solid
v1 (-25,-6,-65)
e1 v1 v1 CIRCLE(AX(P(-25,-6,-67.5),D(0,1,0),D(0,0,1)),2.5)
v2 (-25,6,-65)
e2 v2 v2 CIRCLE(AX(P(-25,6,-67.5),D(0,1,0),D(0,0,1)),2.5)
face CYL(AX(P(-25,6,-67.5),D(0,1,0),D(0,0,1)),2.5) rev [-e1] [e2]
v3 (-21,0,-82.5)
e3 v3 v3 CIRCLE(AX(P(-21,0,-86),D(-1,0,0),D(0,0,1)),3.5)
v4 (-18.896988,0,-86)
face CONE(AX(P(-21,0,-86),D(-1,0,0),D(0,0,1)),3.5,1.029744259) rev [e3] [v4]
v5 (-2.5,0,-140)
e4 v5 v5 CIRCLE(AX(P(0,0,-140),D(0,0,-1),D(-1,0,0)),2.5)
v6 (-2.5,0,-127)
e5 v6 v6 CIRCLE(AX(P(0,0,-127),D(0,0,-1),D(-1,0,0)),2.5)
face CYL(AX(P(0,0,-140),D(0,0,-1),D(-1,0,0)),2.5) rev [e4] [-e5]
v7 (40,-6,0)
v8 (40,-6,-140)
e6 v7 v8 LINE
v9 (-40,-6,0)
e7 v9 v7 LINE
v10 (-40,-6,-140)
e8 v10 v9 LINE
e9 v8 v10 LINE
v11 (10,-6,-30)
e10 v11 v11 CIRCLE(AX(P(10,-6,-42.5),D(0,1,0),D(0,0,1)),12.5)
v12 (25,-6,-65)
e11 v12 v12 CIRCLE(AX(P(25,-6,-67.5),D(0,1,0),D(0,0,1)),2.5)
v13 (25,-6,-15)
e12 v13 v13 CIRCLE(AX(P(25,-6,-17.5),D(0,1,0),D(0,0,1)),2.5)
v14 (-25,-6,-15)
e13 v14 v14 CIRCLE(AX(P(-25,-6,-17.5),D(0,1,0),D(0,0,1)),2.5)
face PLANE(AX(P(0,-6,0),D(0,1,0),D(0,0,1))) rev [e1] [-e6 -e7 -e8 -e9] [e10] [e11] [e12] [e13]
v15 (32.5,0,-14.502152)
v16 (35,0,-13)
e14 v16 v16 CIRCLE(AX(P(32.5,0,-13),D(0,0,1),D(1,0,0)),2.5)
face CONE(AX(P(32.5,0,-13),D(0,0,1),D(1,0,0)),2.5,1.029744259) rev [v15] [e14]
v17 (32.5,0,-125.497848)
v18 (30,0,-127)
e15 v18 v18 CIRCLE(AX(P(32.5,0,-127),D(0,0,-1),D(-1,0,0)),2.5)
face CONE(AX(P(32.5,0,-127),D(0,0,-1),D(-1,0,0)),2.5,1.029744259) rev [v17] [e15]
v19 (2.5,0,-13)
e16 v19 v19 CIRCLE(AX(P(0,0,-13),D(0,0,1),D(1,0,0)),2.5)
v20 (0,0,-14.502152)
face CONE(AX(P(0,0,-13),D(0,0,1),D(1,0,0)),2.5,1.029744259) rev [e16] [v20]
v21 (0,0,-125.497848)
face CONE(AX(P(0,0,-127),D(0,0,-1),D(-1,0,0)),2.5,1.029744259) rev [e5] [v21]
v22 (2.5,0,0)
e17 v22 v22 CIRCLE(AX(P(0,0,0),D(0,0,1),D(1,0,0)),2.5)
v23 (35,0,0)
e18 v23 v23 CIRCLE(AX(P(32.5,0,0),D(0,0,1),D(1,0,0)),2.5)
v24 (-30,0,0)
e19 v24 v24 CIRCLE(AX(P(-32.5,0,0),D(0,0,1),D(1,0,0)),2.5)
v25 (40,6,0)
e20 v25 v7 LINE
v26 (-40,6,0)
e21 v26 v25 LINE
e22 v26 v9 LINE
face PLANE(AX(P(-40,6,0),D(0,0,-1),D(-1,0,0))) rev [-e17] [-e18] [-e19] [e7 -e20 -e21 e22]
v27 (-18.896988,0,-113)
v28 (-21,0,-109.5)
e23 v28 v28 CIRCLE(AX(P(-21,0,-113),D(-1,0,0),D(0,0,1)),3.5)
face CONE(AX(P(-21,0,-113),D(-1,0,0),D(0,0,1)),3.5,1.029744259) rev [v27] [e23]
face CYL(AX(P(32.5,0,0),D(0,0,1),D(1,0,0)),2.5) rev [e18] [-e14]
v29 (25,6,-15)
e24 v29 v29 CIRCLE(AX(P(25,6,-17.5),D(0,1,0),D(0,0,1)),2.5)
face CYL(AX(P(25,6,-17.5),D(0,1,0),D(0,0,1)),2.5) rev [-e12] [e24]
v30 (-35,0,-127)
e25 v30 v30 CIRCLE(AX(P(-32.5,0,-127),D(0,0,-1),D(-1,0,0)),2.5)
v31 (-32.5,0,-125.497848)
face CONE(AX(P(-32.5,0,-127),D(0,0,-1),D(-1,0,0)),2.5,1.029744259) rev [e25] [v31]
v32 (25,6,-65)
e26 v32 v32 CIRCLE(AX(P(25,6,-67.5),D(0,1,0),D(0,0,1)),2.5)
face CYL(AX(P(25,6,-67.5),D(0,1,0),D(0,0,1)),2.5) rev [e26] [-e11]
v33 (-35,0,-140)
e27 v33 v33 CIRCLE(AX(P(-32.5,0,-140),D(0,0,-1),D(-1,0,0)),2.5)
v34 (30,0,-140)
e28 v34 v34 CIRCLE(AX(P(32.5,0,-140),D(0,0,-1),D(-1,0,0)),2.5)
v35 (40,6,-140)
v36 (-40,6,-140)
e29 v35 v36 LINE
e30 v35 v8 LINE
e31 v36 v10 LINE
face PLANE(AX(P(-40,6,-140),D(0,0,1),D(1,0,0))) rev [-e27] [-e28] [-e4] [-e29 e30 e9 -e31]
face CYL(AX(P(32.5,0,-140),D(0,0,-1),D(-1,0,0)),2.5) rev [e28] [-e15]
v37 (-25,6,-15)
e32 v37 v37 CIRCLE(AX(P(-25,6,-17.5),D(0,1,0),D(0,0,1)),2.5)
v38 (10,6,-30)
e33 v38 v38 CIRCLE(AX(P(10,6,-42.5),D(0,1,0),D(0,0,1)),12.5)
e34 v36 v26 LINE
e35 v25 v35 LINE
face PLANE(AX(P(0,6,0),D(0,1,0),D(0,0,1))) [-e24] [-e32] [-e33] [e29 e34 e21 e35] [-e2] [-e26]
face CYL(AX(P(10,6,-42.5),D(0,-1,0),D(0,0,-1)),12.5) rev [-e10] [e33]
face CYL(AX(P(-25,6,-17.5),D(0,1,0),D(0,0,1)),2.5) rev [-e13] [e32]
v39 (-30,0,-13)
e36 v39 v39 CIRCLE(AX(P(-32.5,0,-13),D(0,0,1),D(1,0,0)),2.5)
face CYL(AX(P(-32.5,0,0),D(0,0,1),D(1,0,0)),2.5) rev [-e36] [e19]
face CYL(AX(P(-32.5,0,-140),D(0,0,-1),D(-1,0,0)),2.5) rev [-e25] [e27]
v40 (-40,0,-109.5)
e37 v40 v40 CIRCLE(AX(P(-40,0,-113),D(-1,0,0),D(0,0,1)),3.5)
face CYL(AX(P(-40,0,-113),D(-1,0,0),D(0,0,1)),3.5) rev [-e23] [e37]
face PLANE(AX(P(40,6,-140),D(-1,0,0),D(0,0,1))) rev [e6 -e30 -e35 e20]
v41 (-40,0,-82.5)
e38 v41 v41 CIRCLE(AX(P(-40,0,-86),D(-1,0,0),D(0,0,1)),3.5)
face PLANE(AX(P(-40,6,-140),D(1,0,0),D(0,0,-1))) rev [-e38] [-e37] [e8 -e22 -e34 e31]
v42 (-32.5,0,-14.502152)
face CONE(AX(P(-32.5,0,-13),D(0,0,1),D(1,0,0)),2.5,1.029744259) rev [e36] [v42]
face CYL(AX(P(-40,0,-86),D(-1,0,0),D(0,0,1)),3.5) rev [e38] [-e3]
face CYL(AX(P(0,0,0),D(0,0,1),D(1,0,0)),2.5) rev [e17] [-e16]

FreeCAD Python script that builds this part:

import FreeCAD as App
import Part
import Sketcher

V = App.Vector
Q = App.Units.Quantity

doc = App.newDocument("Part")
params = doc.addObject("Spreadsheet::Sheet", "Params")
for row, (alias, value) in enumerate([
    ("sketch1_diameter", "25 mm"),
    ("sketch1_width", "80 mm"),
    ("sketch1_height", "140 mm"),
    ("pad1_length", "12 mm"),
    ("sketch2_diameter", "5 mm"),
    ("hole_diameter", "5 mm"),
    ("sketch3_height", "13 mm"),
    ("sketch3_width", "2.5 mm"),
    ("groove_angle", "360 deg"),
    ("linearpattern_pitch", "32.5 mm"),
    ("linearpattern2_pitch", "65 mm"),
    ("sketch4_height", "13 mm"),
    ("sketch4_width", "2.5 mm"),
    ("groove2_angle", "360 deg"),
    ("sketch5_height", "13 mm"),
    ("sketch5_width", "2.5 mm"),
    ("groove3_angle", "360 deg"),
    ("sketch6_diameter", "7 mm"),
    ("hole2_diameter", "7 mm"),
    ("hole2_depth", "19 mm"),
], start=1):
    params.set(f"A{row}", alias)
    params.set(f"B{row}", "=" + value)
    params.setAlias(f"B{row}", alias)

body = doc.addObject("PartDesign::Body", "Body")

# Sketch on XZ plane
sketch1 = doc.addObject("Sketcher::SketchObject", "Sketch")
body.addObject(sketch1)
sketch1.AttachmentSupport = (doc.XZ_Plane, [""])
sketch1.MapMode = "FlatFace"
sketch1.addGeometry([
    Part.LineSegment(V(-40, -140, 0), V(-40, 0, 0)),  # 0
    Part.LineSegment(V(-40, 0, 0), V(40, 0, 0)),  # 1
    Part.LineSegment(V(40, 0, 0), V(40, -140, 0)),  # 2
    Part.LineSegment(V(40, -140, 0), V(-40, -140, 0)),  # 3
    Part.Circle(V(10, -42, 0), V(0, 0, 1), 12),  # 4
], False)
sketch1.addConstraint([
    Sketcher.Constraint("Coincident", 0, 2, 1, 1),
    Sketcher.Constraint("Coincident", 1, 2, 2, 1),
    Sketcher.Constraint("Coincident", 2, 2, 3, 1),
    Sketcher.Constraint("Coincident", 3, 2, 0, 1),
    Sketcher.Constraint("Vertical", 0),
    Sketcher.Constraint("Horizontal", 1),
    Sketcher.Constraint("Vertical", 2),
    Sketcher.Constraint("Horizontal", 3),
    Sketcher.Constraint("Symmetric", 0, 2, 1, 2, -1, 1),
    Sketcher.Constraint("Diameter", 4, 25.0),
    Sketcher.Constraint("DistanceX", 1, 1, 1, 2, 80.0),
    Sketcher.Constraint("DistanceY", 0, 1, 0, 2, 140.0),
    Sketcher.Constraint("DistanceX", -1, 1, 4, 3, 10.0),
    Sketcher.Constraint("DistanceY", 4, 3, -1, 1, 42.5),
])
sketch1.setExpression("Constraints[9]", "Params.sketch1_diameter")
sketch1.setExpression("Constraints[10]", "Params.sketch1_width")
sketch1.setExpression("Constraints[11]", "Params.sketch1_height")
pad1 = doc.addObject("PartDesign::Pad", "Pad")
body.addObject(pad1)
pad1.Profile = sketch1
pad1.setExpression("Length", "Params.pad1_length")
pad1.Midplane = True

# Sketch on XZ plane
sketch2 = doc.addObject("Sketcher::SketchObject", "Sketch001")
body.addObject(sketch2)
sketch2.AttachmentSupport = (doc.XZ_Plane, [""])
sketch2.MapMode = "FlatFace"
sketch2.AttachmentOffset = App.Placement(V(0, 0, -6), App.Rotation())
sketch2.addGeometry([
    Part.Circle(V(-25, -67.5, 0), V(0, 0, 1), 2.5),
    Part.Circle(V(25, -67.5, 0), V(0, 0, 1), 2.5),
    Part.Circle(V(25, -17.5, 0), V(0, 0, 1), 2.5),
    Part.Circle(V(-25, -17.5, 0), V(0, 0, 1), 2.5),
], False)
sketch2.addConstraint([
    Sketcher.Constraint("Equal", 0, 1),
    Sketcher.Constraint("Equal", 1, 2),
    Sketcher.Constraint("Equal", 2, 3),
    Sketcher.Constraint("Symmetric", 0, 3, 1, 3, -2),
    Sketcher.Constraint("Symmetric", 2, 3, 3, 3, -2),
    Sketcher.Constraint("Vertical", 1, 3, 2, 3),
    Sketcher.Constraint("Diameter", 0, 5.0),
    Sketcher.Constraint("DistanceX", 0, 3, -1, 1, 25.0),
    Sketcher.Constraint("DistanceY", 1, 3, 2, 3, 50.0),
    Sketcher.Constraint("DistanceY", 0, 3, -1, 1, 67.5),
])
sketch2.setExpression("Constraints[6]", "Params.sketch2_diameter")
doc.recompute()
hole = doc.addObject("PartDesign::Hole", "Hole")
body.addObject(hole)
hole.Profile = sketch2
hole.ThreadType = "None"
hole.setExpression("Diameter", "Params.hole_diameter")
hole.DepthType = "ThroughAll"
hole.Reversed = True

# Sketch on YZ plane
sketch3 = doc.addObject("Sketcher::SketchObject", "Sketch002")
body.addObject(sketch3)
sketch3.AttachmentSupport = (doc.YZ_Plane, [""])
sketch3.MapMode = "FlatFace"
sketch3.AttachmentOffset = App.Placement(V(0, 0, 32.5), App.Rotation())
sketch3.addGeometry([
    Part.LineSegment(V(0, -14.5, 0), V(0, 0, 0)),
    Part.LineSegment(V(0, 0, 0), V(-2.5, 0, 0)),
    Part.LineSegment(V(-2.5, 0, 0), V(-2.5, -13, 0)),
    Part.LineSegment(V(-2.5, -13, 0), V(0, -14.5, 0)),
], False)
sketch3.addConstraint([
    Sketcher.Constraint("Coincident", 0, 2, 1, 1),
    Sketcher.Constraint("Coincident", 1, 2, 2, 1),
    Sketcher.Constraint("Coincident", 2, 2, 3, 1),
    Sketcher.Constraint("Coincident", 3, 2, 0, 1),
    Sketcher.Constraint("Vertical", 0),
    Sketcher.Constraint("Horizontal", 1),
    Sketcher.Constraint("Vertical", 2),
    Sketcher.Constraint("Coincident", 0, 2, -1, 1),
    Sketcher.Constraint("DistanceY", 2, 2, 2, 1, 13.0),
    Sketcher.Constraint("Angle", 3, Q("-31 deg")),
    Sketcher.Constraint("DistanceX", 1, 2, 1, 1, 2.5),
])
sketch3.setExpression("Constraints[8]", "Params.sketch3_height")
sketch3.setExpression("Constraints[10]", "Params.sketch3_width")
groove = doc.addObject("PartDesign::Groove", "Groove")
body.addObject(groove)
groove.Profile = sketch3
groove.ReferenceAxis = (sketch3, ["V_Axis"])
groove.setExpression("Angle", "Params.groove_angle")
doc.recompute()

linearpattern = doc.addObject("PartDesign::LinearPattern", "LinearPattern")
body.addObject(linearpattern)
linearpattern.Originals = [groove]
linearpattern.Direction = (doc.X_Axis, [""])
linearpattern.Mode = "offset"
linearpattern.setExpression("Offset", "Params.linearpattern_pitch")
linearpattern.Occurrences = 2
linearpattern.Reversed = True
body.Tip = linearpattern
doc.recompute()

linearpattern2 = doc.addObject("PartDesign::LinearPattern", "LinearPattern001")
body.addObject(linearpattern2)
linearpattern2.Originals = [groove]
linearpattern2.Direction = (doc.X_Axis, [""])
linearpattern2.Mode = "offset"
linearpattern2.setExpression("Offset", "Params.linearpattern2_pitch")
linearpattern2.Occurrences = 2
linearpattern2.Reversed = True
body.Tip = linearpattern2
doc.recompute()

datumplane = doc.addObject("PartDesign::Plane", "DatumPlane")
body.addObject(datumplane)
datumplane.AttachmentSupport = (doc.XY_Plane, [""])
datumplane.MapMode = "FlatFace"
datumplane.AttachmentOffset = App.Placement(V(0, 0, -70), App.Rotation())
mirrored = doc.addObject("PartDesign::Mirrored", "Mirrored")
body.addObject(mirrored)
mirrored.Originals = [groove]
mirrored.MirrorPlane = (datumplane, [""])
body.Tip = mirrored

# Sketch on YZ plane
sketch4 = doc.addObject("Sketcher::SketchObject", "Sketch003")
body.addObject(sketch4)
sketch4.AttachmentSupport = (doc.YZ_Plane, [""])
sketch4.MapMode = "FlatFace"
sketch4.addGeometry([
    Part.LineSegment(V(0, -140, 0), V(0, -125.5, 0)),
    Part.LineSegment(V(0, -125.5, 0), V(-2.5, -127, 0)),
    Part.LineSegment(V(-2.5, -127, 0), V(-2.5, -140, 0)),
    Part.LineSegment(V(-2.5, -140, 0), V(0, -140, 0)),
], False)
sketch4.addConstraint([
    Sketcher.Constraint("Coincident", 0, 2, 1, 1),
    Sketcher.Constraint("Coincident", 1, 2, 2, 1),
    Sketcher.Constraint("Coincident", 2, 2, 3, 1),
    Sketcher.Constraint("Coincident", 3, 2, 0, 1),
    Sketcher.Constraint("Vertical", 0),
    Sketcher.Constraint("Vertical", 2),
    Sketcher.Constraint("Horizontal", 3),
    Sketcher.Constraint("PointOnObject", 0, 2, -2),
    Sketcher.Constraint("DistanceY", 2, 2, 2, 1, 13.0),
    Sketcher.Constraint("Angle", 1, Q("-149 deg")),
    Sketcher.Constraint("DistanceX", 3, 1, 3, 2, 2.5),
    Sketcher.Constraint("DistanceY", 1, 2, -1, 1, 127.0),
])
sketch4.setExpression("Constraints[8]", "Params.sketch4_height")
sketch4.setExpression("Constraints[10]", "Params.sketch4_width")
groove2 = doc.addObject("PartDesign::Groove", "Groove001")
body.addObject(groove2)
groove2.Profile = sketch4
groove2.ReferenceAxis = (sketch4, ["V_Axis"])
groove2.setExpression("Angle", "Params.groove2_angle")

# Sketch on YZ plane
sketch5 = doc.addObject("Sketcher::SketchObject", "Sketch004")
body.addObject(sketch5)
sketch5.AttachmentSupport = (doc.YZ_Plane, [""])
sketch5.MapMode = "FlatFace"
sketch5.AttachmentOffset = App.Placement(V(0, 0, -32.5), App.Rotation())
sketch5.addGeometry([
    Part.LineSegment(V(0, -140, 0), V(0, -125.5, 0)),
    Part.LineSegment(V(0, -125.5, 0), V(-2.5, -127, 0)),
    Part.LineSegment(V(-2.5, -127, 0), V(-2.5, -140, 0)),
    Part.LineSegment(V(-2.5, -140, 0), V(0, -140, 0)),
], False)
sketch5.addConstraint([
    Sketcher.Constraint("Coincident", 0, 2, 1, 1),
    Sketcher.Constraint("Coincident", 1, 2, 2, 1),
    Sketcher.Constraint("Coincident", 2, 2, 3, 1),
    Sketcher.Constraint("Coincident", 3, 2, 0, 1),
    Sketcher.Constraint("Vertical", 0),
    Sketcher.Constraint("Vertical", 2),
    Sketcher.Constraint("Horizontal", 3),
    Sketcher.Constraint("PointOnObject", 0, 2, -2),
    Sketcher.Constraint("DistanceY", 2, 2, 2, 1, 13.0),
    Sketcher.Constraint("Angle", 1, Q("-149 deg")),
    Sketcher.Constraint("DistanceX", 3, 1, 3, 2, 2.5),
    Sketcher.Constraint("DistanceY", 1, 2, -1, 1, 127.0),
])
sketch5.setExpression("Constraints[8]", "Params.sketch5_height")
sketch5.setExpression("Constraints[10]", "Params.sketch5_width")
groove3 = doc.addObject("PartDesign::Groove", "Groove002")
body.addObject(groove3)
groove3.Profile = sketch5
groove3.ReferenceAxis = (sketch5, ["V_Axis"])
groove3.setExpression("Angle", "Params.groove3_angle")

# Sketch on YZ plane
sketch6 = doc.addObject("Sketcher::SketchObject", "Sketch005")
body.addObject(sketch6)
sketch6.AttachmentSupport = (doc.YZ_Plane, [""])
sketch6.MapMode = "FlatFace"
sketch6.AttachmentOffset = App.Placement(V(0, 0, -40), App.Rotation())
sketch6.addGeometry([
    Part.Circle(V(0, -113, 0), V(0, 0, 1), 3.5),
    Part.Circle(V(0, -86, 0), V(0, 0, 1), 3.5),
], False)
sketch6.addConstraint([
    Sketcher.Constraint("Equal", 0, 1),
    Sketcher.Constraint("PointOnObject", 0, 3, -2),
    Sketcher.Constraint("PointOnObject", 1, 3, -2),
    Sketcher.Constraint("Diameter", 0, 7.0),
    Sketcher.Constraint("DistanceY", 0, 3, -1, 1, 113.0),
    Sketcher.Constraint("DistanceY", 1, 3, -1, 1, 86.0),
])
sketch6.setExpression("Constraints[3]", "Params.sketch6_diameter")
doc.recompute()
hole2 = doc.addObject("PartDesign::Hole", "Hole001")
body.addObject(hole2)
hole2.Profile = sketch6
hole2.ThreadType = "None"
hole2.setExpression("Diameter", "Params.hole2_diameter")
hole2.DepthType = "Dimension"
hole2.setExpression("Depth", "Params.hole2_depth")
hole2.DrillPoint = "Angled"
hole2.DrillPointAngle = 118
hole2.Reversed = True

doc.recompute()
